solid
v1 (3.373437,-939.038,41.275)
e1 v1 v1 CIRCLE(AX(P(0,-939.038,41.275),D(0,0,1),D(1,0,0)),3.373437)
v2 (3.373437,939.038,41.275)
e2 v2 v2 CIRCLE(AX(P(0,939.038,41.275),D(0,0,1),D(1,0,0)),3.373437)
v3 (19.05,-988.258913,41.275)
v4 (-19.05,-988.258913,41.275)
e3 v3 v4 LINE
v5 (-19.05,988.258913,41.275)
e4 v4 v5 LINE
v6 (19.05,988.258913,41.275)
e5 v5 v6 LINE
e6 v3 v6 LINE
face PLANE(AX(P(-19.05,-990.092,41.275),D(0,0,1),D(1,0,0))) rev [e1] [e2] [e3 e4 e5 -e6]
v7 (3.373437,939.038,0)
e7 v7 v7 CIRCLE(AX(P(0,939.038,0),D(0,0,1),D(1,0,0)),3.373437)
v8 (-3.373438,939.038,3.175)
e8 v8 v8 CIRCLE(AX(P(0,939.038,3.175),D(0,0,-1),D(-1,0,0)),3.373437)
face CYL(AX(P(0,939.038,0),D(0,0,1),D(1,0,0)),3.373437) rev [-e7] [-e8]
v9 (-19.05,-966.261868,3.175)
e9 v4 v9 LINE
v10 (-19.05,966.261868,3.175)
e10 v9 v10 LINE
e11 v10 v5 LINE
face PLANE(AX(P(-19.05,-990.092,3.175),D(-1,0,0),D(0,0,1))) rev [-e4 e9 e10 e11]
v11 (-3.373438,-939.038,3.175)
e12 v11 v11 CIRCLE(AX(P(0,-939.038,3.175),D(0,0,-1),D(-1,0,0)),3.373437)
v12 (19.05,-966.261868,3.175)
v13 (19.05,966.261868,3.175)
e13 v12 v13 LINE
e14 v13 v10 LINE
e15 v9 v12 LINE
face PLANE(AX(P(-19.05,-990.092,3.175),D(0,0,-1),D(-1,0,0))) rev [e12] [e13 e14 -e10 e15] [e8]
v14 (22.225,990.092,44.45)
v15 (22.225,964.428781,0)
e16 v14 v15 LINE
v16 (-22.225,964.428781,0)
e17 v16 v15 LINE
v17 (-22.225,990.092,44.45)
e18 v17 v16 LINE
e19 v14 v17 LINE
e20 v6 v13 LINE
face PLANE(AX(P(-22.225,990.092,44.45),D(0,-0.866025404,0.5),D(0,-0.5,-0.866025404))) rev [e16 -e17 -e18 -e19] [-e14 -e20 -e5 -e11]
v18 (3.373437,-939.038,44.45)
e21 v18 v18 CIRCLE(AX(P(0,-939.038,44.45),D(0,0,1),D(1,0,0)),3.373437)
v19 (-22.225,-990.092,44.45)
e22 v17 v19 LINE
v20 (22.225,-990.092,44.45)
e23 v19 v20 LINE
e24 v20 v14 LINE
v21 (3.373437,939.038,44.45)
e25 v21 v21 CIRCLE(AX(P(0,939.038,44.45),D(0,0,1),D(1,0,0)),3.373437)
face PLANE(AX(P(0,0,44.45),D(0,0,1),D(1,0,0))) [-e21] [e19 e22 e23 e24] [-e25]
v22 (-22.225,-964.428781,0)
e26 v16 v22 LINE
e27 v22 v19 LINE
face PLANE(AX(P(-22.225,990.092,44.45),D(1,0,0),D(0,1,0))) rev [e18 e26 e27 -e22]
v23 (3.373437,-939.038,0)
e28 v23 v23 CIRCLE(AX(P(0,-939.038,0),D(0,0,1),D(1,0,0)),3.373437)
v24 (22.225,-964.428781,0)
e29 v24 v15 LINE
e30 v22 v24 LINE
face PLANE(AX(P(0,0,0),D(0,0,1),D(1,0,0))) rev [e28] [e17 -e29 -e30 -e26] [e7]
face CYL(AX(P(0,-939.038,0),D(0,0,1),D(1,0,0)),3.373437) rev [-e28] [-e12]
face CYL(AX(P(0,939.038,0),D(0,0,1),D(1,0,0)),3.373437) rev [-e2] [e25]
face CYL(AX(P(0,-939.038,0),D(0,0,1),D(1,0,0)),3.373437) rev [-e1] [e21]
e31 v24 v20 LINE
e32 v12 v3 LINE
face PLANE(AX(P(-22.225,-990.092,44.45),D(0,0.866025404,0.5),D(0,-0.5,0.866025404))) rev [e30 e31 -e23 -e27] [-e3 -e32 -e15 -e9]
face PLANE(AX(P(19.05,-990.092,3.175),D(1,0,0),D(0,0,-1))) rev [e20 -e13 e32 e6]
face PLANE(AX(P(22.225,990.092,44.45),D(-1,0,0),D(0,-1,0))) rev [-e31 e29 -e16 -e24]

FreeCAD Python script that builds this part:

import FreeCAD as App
import Part
import Sketcher
from FreeCAD import Vector
Q = App.Units.Quantity


def add_polygon(sketch, points):
    """Adds a closed chain of lines whose ends are joined by coincident constraints."""
    first, n = sketch.GeometryCount, len(points)
    for a, b in zip(points, points[1:] + points[:1]):
        sketch.addGeometry(Part.LineSegment(App.Vector(*a, 0), App.Vector(*b, 0)), False)
    for i in range(n):
        sketch.addConstraint(Sketcher.Constraint("Coincident", first + i, 2, first + (i + 1) % n, 1))

doc = App.newDocument("Part")
body = doc.addObject("PartDesign::Body", "Body")

# Sketch on XY plane
sketch1 = body.newObject("Sketcher::SketchObject", "Sketch")
sketch1.AttachmentSupport = (doc.getObject("XY_Plane"), [""])
sketch1.MapMode = "FlatFace"
add_polygon(sketch1, [(-22, 990), (-22, -990), (22, -990), (22, 990)])  # lines 0-3
sketch1.addConstraint([
    Sketcher.Constraint("Vertical", 0),
    Sketcher.Constraint("Horizontal", 1),
    Sketcher.Constraint("Vertical", 2),
    Sketcher.Constraint("Horizontal", 3),
    Sketcher.Constraint("Symmetric", 0, 2, 2, 2, -1, 1),
    Sketcher.Constraint("DistanceX", 1, 1, 1, 2, Q("1.75 in")),
    Sketcher.Constraint("DistanceY", 0, 2, 0, 1, Q("77.96 in")),
])
pad1 = body.newObject("PartDesign::Pad", "Pad")
pad1.Profile = sketch1
pad1.Length = Q("1.75 in")

# Sketch on XZ plane
sketch2 = body.newObject("Sketcher::SketchObject", "Sketch001")
sketch2.AttachmentSupport = (doc.getObject("XZ_Plane"), [""])
sketch2.MapMode = "FlatFace"
sketch2.AttachmentOffset = App.Placement(Vector(0, 0, -38.98 * 25.4), App.Rotation())
add_polygon(sketch2, [(-19, 3), (-19, 41), (19, 41), (19, 3)])  # lines 0-3
sketch2.addConstraint([
    Sketcher.Constraint("Vertical", 0),
    Sketcher.Constraint("Horizontal", 1),
    Sketcher.Constraint("Vertical", 2),
    Sketcher.Constraint("Horizontal", 3),
    Sketcher.Constraint("Equal", 3, 0),
    Sketcher.Constraint("DistanceX", 1, 1, 1, 2, Q("1.5 in")),
    Sketcher.Constraint("DistanceX", 0, 2, -1, 1, Q("0.75 in")),
    Sketcher.Constraint("DistanceY", -1, 1, 0, 2, Q("1.625 in")),
])
pocket1 = body.newObject("PartDesign::Pocket", "Pocket")
pocket1.Profile = sketch2
pocket1.Type = "ThroughAll"
pocket1.Reversed = True

# Sketch on YZ plane
sketch3 = body.newObject("Sketcher::SketchObject", "Sketch002")
sketch3.AttachmentSupport = (doc.getObject("YZ_Plane"), [""])
sketch3.MapMode = "FlatFace"
sketch3.AttachmentOffset = App.Placement(Vector(0, 0, 0.875 * 25.4), App.Rotation())
add_polygon(sketch3, [(990, 44), (964, 0), (990, 0)])  # lines 0-2
add_polygon(sketch3, [(-964, 0), (-990, 44), (-990, 0)])  # lines 3-5
sketch3.addConstraint([
    Sketcher.Constraint("Horizontal", 1),
    Sketcher.Constraint("Vertical", 2),
    Sketcher.Constraint("Vertical", 4),
    Sketcher.Constraint("Horizontal", 5),
    Sketcher.Constraint("Symmetric", 1, 2, 4, 2, -1, 1),
    Sketcher.Constraint("Symmetric", 0, 2, 5, 2, -2),
    Sketcher.Constraint("Horizontal", 2, 2, 3, 2),
    Sketcher.Constraint("Angle", 0, Q("-120 deg")),
    Sketcher.Constraint("DistanceY", 2, 1, 2, 2, Q("1.75 in")),
    Sketcher.Constraint("DistanceX", -1, 1, 1, 2, Q("38.98 in")),
])
pocket2 = body.newObject("PartDesign::Pocket", "Pocket001")
pocket2.Profile = sketch3
pocket2.Type = "ThroughAll"

# Sketch on XY plane
sketch4 = body.newObject("Sketcher::SketchObject", "Sketch003")
sketch4.AttachmentSupport = (doc.getObject("XY_Plane"), [""])
sketch4.MapMode = "FlatFace"
sketch4.AttachmentOffset = App.Placement(Vector(0, 0, 1.75 * 25.4), App.Rotation())
sketch4.addGeometry([
    Part.Circle(Vector(0, 939, 0), Vector(0, 0, 1), 3.4),
    Part.Circle(Vector(0, -939, 0), Vector(0, 0, 1), 3.4),
], False)
sketch4.addConstraint([
    Sketcher.Constraint("Equal", 0, 1),
    Sketcher.Constraint("Symmetric", 0, 3, 1, 3, -1, 1),
    Sketcher.Constraint("PointOnObject", 0, 3, -2),
    Sketcher.Constraint("Diameter", 0, Q("0.265625 in")),
    Sketcher.Constraint("DistanceY", -1, 1, 0, 3, Q("36.97 in")),
])
pocket3 = body.newObject("PartDesign::Pocket", "Pocket002")
pocket3.Profile = sketch4
pocket3.Type = "ThroughAll"

doc.recompute()
